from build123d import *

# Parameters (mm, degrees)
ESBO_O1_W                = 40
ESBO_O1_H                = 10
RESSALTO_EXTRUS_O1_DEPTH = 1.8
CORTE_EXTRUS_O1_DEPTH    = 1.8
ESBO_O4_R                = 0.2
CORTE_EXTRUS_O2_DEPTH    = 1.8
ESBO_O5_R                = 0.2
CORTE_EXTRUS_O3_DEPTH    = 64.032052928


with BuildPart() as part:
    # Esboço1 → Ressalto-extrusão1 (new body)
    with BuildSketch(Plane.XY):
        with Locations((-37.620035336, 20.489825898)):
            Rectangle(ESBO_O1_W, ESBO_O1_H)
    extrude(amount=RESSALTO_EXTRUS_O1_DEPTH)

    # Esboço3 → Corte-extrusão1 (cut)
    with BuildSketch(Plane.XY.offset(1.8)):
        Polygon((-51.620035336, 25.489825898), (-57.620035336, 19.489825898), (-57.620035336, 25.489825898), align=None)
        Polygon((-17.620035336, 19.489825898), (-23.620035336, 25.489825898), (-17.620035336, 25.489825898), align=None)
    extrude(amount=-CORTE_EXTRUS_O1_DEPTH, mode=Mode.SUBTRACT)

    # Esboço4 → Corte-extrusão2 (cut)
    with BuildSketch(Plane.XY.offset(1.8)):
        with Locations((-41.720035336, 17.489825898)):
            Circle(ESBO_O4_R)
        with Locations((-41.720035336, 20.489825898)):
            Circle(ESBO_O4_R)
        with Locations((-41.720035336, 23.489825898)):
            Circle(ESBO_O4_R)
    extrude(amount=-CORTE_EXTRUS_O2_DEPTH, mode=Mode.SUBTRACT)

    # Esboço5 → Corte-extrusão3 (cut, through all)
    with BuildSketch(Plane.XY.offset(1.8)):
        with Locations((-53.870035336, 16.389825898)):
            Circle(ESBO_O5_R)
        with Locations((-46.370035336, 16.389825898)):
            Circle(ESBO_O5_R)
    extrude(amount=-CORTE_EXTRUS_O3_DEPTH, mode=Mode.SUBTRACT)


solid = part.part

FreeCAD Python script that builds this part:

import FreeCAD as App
import Part
import Sketcher

V = App.Vector
Q = App.Units.Quantity


def add_polygon(sketch, points):
    """Adds a closed chain of lines whose ends are joined by coincident constraints."""
    first, n = sketch.GeometryCount, len(points)
    for a, b in zip(points, points[1:] + points[:1]):
        sketch.addGeometry(Part.LineSegment(App.Vector(*a, 0), App.Vector(*b, 0)), False)
    for i in range(n):
        sketch.addConstraint(Sketcher.Constraint("Coincident", first + i, 2, first + (i + 1) % n, 1))

doc = App.newDocument("Part")
body = doc.addObject("PartDesign::Body", "Body")

# Sketch on XY plane
sketch1 = doc.addObject("Sketcher::SketchObject", "Sketch")
body.addObject(sketch1)
sketch1.AttachmentSupport = (doc.XY_Plane, [""])
sketch1.MapMode = "FlatFace"
add_polygon(sketch1, [(-58, 25), (-58, 15), (-18, 15), (-18, 25)])  # lines 0-3
sketch1.addConstraint(Sketcher.Constraint("Vertical", 0))
sketch1.addConstraint(Sketcher.Constraint("Horizontal", 1))
sketch1.addConstraint(Sketcher.Constraint("Vertical", 2))
sketch1.addConstraint(Sketcher.Constraint("Horizontal", 3))
sketch1.addConstraint(Sketcher.Constraint("DistanceX", 1, 1, 1, 2, Q("40 mm")))
sketch1.addConstraint(Sketcher.Constraint("DistanceY", 0, 2, 0, 1, Q("10 mm")))
sketch1.addConstraint(Sketcher.Constraint("DistanceX", 0, 2, -1, 1, Q("57.620035 mm")))
sketch1.addConstraint(Sketcher.Constraint("DistanceY", -1, 1, 0, 2, Q("15.489826 mm")))
pad1 = doc.addObject("PartDesign::Pad", "Pad")
body.addObject(pad1)
pad1.Profile = sketch1
pad1.Length = 1.8

# Sketch on XY plane
sketch2 = doc.addObject("Sketcher::SketchObject", "Sketch001")
body.addObject(sketch2)
sketch2.AttachmentSupport = (doc.XY_Plane, [""])
sketch2.MapMode = "FlatFace"
sketch2.AttachmentOffset = App.Placement(V(0, 0, 1.8), App.Rotation())
add_polygon(sketch2, [(-58, 19), (-52, 25), (-58, 25)])  # lines 0-2
add_polygon(sketch2, [(-24, 25), (-18, 19), (-18, 25)])  # lines 3-5
sketch2.addConstraint(Sketcher.Constraint("Horizontal", 1))
sketch2.addConstraint(Sketcher.Constraint("Vertical", 2))
sketch2.addConstraint(Sketcher.Constraint("Vertical", 4))
sketch2.addConstraint(Sketcher.Constraint("Horizontal", 5))
sketch2.addConstraint(Sketcher.Constraint("Perpendicular", 0, 3))
sketch2.addConstraint(Sketcher.Constraint("Horizontal", 2, 2, 3, 2))
sketch2.addConstraint(Sketcher.Constraint("Horizontal", 1, 2, 4, 2))
sketch2.addConstraint(Sketcher.Constraint("Equal", 1, 5))
sketch2.addConstraint(Sketcher.Constraint("DistanceX", 1, 2, 1, 1, Q("6 mm")))
sketch2.addConstraint(Sketcher.Constraint("DistanceX", 0, 2, 3, 2, Q("34 mm")))
sketch2.addConstraint(Sketcher.Constraint("DistanceX", 0, 2, -1, 1, Q("51.620035 mm")))
sketch2.addConstraint(Sketcher.Constraint("DistanceY", -1, 1, 0, 2, Q("25.489826 mm")))
pocket1 = doc.addObject("PartDesign::Pocket", "Pocket")
body.addObject(pocket1)
pocket1.Profile = sketch2
pocket1.Length = 1.8

# Sketch on XY plane
sketch3 = doc.addObject("Sketcher::SketchObject", "Sketch002")
body.addObject(sketch3)
sketch3.AttachmentSupport = (doc.XY_Plane, [""])
sketch3.MapMode = "FlatFace"
sketch3.AttachmentOffset = App.Placement(V(0, 0, 1.8), App.Rotation())
sketch3.addGeometry(Part.Circle(V(-41.72, 17.49, 0), V(0, 0, 1), 0.2), False)
sketch3.addGeometry(Part.Circle(V(-41.72, 20.49, 0), V(0, 0, 1), 0.2), False)
sketch3.addGeometry(Part.Circle(V(-41.72, 23.49, 0), V(0, 0, 1), 0.2), False)
sketch3.addConstraint(Sketcher.Constraint("Equal", 0, 1))
sketch3.addConstraint(Sketcher.Constraint("Equal", 1, 2))
sketch3.addConstraint(Sketcher.Constraint("Vertical", 0, 3, 1, 3))
sketch3.addConstraint(Sketcher.Constraint("Vertical", 1, 3, 2, 3))
sketch3.addConstraint(Sketcher.Constraint("Diameter", 0, Q("0.4 mm")))
sketch3.addConstraint(Sketcher.Constraint("DistanceY", 0, 3, 1, 3, Q("3 mm")))
sketch3.addConstraint(Sketcher.Constraint("DistanceY", 1, 3, 2, 3, Q("3 mm")))
sketch3.addConstraint(Sketcher.Constraint("DistanceX", 0, 3, -1, 1, Q("41.720035 mm")))
sketch3.addConstraint(Sketcher.Constraint("DistanceY", -1, 1, 0, 3, Q("17.489826 mm")))
pocket2 = doc.addObject("PartDesign::Pocket", "Pocket001")
body.addObject(pocket2)
pocket2.Profile = sketch3
pocket2.Length = 1.8

# Sketch on XY plane
sketch4 = doc.addObject("Sketcher::SketchObject", "Sketch003")
body.addObject(sketch4)
sketch4.AttachmentSupport = (doc.XY_Plane, [""])
sketch4.MapMode = "FlatFace"
sketch4.AttachmentOffset = App.Placement(V(0, 0, 1.8), App.Rotation())
sketch4.addGeometry(Part.Circle(V(-53.87, 16.39, 0), V(0, 0, 1), 0.2), False)
sketch4.addGeometry(Part.Circle(V(-46.37, 16.39, 0), V(0, 0, 1), 0.2), False)
sketch4.addConstraint(Sketcher.Constraint("Equal", 0, 1))
sketch4.addConstraint(Sketcher.Constraint("Horizontal", 0, 3, 1, 3))
sketch4.addConstraint(Sketcher.Constraint("Diameter", 0, Q("0.4 mm")))
sketch4.addConstraint(Sketcher.Constraint("DistanceX", 0, 3, 1, 3, Q("7.5 mm")))
sketch4.addConstraint(Sketcher.Constraint("DistanceX", 0, 3, -1, 1, Q("53.870035 mm")))
sketch4.addConstraint(Sketcher.Constraint("DistanceY", -1, 1, 0, 3, Q("16.389826 mm")))
pocket3 = doc.addObject("PartDesign::Pocket", "Pocket002")
body.addObject(pocket3)
pocket3.Profile = sketch4
pocket3.Type = "ThroughAll"

doc.recompute()
